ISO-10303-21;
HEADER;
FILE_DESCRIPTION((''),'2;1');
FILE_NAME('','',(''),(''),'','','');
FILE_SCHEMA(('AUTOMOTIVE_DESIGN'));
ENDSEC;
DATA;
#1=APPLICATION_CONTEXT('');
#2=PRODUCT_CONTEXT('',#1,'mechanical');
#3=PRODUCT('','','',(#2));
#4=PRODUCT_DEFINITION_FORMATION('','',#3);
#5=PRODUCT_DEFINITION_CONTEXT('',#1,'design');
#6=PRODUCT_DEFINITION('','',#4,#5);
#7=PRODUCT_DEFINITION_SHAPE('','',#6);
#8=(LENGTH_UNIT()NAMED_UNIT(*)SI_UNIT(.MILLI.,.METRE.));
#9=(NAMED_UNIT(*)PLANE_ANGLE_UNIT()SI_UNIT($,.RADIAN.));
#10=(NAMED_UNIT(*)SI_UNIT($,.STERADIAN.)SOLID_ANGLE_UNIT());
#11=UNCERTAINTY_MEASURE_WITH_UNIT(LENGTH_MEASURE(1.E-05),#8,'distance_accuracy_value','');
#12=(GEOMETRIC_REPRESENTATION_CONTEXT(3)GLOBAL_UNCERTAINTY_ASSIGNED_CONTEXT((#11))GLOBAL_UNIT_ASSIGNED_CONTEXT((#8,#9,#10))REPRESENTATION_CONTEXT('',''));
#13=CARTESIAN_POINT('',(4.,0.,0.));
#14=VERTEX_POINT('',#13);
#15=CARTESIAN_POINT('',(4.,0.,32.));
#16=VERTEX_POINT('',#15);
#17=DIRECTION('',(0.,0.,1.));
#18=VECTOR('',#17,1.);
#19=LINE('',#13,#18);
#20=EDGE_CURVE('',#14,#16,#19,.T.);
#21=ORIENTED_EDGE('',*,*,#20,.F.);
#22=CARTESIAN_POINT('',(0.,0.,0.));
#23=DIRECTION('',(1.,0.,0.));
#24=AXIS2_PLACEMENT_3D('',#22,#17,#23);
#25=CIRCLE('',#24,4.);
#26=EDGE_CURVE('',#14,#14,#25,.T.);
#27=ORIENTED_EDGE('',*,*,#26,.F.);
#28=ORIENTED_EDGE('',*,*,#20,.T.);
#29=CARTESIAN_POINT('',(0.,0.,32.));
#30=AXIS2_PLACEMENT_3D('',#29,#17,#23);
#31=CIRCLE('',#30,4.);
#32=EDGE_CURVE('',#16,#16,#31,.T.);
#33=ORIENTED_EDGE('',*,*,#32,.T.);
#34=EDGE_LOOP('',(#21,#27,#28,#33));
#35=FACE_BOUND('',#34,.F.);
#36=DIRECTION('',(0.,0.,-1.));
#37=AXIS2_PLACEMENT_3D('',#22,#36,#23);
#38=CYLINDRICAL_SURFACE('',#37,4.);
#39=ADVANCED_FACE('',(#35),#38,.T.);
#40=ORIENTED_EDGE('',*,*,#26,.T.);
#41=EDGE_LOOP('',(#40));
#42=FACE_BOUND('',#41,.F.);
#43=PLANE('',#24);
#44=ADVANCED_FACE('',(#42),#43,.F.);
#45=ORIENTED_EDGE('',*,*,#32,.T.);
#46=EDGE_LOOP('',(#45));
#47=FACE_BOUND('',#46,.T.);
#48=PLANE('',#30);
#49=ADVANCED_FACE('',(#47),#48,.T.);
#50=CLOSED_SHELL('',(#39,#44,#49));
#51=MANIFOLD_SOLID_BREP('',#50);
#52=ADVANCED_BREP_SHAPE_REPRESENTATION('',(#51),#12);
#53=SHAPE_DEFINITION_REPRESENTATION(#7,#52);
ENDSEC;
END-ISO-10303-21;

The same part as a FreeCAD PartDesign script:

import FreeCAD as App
import Part
import Sketcher

V = App.Vector

doc = App.newDocument("Part")
body = doc.addObject("PartDesign::Body", "Body")

sketch1 = body.newObject("Sketcher::SketchObject", "Sketch")
sketch1.AttachmentSupport = (doc.getObject("XY_Plane"), [""])
sketch1.MapMode = "FlatFace"
sketch1.addGeometry(Part.Circle(V(0, 0, 0), V(0, 0, 1), 4), False)
sketch1.addConstraint([
    Sketcher.Constraint("Coincident", 0, 3, -1, 1),
    Sketcher.Constraint("Diameter", 0, 8.0),
])
pad1 = body.newObject("PartDesign::Pad", "Pad")
pad1.Profile = sketch1
pad1.Length = 32

doc.recompute()
